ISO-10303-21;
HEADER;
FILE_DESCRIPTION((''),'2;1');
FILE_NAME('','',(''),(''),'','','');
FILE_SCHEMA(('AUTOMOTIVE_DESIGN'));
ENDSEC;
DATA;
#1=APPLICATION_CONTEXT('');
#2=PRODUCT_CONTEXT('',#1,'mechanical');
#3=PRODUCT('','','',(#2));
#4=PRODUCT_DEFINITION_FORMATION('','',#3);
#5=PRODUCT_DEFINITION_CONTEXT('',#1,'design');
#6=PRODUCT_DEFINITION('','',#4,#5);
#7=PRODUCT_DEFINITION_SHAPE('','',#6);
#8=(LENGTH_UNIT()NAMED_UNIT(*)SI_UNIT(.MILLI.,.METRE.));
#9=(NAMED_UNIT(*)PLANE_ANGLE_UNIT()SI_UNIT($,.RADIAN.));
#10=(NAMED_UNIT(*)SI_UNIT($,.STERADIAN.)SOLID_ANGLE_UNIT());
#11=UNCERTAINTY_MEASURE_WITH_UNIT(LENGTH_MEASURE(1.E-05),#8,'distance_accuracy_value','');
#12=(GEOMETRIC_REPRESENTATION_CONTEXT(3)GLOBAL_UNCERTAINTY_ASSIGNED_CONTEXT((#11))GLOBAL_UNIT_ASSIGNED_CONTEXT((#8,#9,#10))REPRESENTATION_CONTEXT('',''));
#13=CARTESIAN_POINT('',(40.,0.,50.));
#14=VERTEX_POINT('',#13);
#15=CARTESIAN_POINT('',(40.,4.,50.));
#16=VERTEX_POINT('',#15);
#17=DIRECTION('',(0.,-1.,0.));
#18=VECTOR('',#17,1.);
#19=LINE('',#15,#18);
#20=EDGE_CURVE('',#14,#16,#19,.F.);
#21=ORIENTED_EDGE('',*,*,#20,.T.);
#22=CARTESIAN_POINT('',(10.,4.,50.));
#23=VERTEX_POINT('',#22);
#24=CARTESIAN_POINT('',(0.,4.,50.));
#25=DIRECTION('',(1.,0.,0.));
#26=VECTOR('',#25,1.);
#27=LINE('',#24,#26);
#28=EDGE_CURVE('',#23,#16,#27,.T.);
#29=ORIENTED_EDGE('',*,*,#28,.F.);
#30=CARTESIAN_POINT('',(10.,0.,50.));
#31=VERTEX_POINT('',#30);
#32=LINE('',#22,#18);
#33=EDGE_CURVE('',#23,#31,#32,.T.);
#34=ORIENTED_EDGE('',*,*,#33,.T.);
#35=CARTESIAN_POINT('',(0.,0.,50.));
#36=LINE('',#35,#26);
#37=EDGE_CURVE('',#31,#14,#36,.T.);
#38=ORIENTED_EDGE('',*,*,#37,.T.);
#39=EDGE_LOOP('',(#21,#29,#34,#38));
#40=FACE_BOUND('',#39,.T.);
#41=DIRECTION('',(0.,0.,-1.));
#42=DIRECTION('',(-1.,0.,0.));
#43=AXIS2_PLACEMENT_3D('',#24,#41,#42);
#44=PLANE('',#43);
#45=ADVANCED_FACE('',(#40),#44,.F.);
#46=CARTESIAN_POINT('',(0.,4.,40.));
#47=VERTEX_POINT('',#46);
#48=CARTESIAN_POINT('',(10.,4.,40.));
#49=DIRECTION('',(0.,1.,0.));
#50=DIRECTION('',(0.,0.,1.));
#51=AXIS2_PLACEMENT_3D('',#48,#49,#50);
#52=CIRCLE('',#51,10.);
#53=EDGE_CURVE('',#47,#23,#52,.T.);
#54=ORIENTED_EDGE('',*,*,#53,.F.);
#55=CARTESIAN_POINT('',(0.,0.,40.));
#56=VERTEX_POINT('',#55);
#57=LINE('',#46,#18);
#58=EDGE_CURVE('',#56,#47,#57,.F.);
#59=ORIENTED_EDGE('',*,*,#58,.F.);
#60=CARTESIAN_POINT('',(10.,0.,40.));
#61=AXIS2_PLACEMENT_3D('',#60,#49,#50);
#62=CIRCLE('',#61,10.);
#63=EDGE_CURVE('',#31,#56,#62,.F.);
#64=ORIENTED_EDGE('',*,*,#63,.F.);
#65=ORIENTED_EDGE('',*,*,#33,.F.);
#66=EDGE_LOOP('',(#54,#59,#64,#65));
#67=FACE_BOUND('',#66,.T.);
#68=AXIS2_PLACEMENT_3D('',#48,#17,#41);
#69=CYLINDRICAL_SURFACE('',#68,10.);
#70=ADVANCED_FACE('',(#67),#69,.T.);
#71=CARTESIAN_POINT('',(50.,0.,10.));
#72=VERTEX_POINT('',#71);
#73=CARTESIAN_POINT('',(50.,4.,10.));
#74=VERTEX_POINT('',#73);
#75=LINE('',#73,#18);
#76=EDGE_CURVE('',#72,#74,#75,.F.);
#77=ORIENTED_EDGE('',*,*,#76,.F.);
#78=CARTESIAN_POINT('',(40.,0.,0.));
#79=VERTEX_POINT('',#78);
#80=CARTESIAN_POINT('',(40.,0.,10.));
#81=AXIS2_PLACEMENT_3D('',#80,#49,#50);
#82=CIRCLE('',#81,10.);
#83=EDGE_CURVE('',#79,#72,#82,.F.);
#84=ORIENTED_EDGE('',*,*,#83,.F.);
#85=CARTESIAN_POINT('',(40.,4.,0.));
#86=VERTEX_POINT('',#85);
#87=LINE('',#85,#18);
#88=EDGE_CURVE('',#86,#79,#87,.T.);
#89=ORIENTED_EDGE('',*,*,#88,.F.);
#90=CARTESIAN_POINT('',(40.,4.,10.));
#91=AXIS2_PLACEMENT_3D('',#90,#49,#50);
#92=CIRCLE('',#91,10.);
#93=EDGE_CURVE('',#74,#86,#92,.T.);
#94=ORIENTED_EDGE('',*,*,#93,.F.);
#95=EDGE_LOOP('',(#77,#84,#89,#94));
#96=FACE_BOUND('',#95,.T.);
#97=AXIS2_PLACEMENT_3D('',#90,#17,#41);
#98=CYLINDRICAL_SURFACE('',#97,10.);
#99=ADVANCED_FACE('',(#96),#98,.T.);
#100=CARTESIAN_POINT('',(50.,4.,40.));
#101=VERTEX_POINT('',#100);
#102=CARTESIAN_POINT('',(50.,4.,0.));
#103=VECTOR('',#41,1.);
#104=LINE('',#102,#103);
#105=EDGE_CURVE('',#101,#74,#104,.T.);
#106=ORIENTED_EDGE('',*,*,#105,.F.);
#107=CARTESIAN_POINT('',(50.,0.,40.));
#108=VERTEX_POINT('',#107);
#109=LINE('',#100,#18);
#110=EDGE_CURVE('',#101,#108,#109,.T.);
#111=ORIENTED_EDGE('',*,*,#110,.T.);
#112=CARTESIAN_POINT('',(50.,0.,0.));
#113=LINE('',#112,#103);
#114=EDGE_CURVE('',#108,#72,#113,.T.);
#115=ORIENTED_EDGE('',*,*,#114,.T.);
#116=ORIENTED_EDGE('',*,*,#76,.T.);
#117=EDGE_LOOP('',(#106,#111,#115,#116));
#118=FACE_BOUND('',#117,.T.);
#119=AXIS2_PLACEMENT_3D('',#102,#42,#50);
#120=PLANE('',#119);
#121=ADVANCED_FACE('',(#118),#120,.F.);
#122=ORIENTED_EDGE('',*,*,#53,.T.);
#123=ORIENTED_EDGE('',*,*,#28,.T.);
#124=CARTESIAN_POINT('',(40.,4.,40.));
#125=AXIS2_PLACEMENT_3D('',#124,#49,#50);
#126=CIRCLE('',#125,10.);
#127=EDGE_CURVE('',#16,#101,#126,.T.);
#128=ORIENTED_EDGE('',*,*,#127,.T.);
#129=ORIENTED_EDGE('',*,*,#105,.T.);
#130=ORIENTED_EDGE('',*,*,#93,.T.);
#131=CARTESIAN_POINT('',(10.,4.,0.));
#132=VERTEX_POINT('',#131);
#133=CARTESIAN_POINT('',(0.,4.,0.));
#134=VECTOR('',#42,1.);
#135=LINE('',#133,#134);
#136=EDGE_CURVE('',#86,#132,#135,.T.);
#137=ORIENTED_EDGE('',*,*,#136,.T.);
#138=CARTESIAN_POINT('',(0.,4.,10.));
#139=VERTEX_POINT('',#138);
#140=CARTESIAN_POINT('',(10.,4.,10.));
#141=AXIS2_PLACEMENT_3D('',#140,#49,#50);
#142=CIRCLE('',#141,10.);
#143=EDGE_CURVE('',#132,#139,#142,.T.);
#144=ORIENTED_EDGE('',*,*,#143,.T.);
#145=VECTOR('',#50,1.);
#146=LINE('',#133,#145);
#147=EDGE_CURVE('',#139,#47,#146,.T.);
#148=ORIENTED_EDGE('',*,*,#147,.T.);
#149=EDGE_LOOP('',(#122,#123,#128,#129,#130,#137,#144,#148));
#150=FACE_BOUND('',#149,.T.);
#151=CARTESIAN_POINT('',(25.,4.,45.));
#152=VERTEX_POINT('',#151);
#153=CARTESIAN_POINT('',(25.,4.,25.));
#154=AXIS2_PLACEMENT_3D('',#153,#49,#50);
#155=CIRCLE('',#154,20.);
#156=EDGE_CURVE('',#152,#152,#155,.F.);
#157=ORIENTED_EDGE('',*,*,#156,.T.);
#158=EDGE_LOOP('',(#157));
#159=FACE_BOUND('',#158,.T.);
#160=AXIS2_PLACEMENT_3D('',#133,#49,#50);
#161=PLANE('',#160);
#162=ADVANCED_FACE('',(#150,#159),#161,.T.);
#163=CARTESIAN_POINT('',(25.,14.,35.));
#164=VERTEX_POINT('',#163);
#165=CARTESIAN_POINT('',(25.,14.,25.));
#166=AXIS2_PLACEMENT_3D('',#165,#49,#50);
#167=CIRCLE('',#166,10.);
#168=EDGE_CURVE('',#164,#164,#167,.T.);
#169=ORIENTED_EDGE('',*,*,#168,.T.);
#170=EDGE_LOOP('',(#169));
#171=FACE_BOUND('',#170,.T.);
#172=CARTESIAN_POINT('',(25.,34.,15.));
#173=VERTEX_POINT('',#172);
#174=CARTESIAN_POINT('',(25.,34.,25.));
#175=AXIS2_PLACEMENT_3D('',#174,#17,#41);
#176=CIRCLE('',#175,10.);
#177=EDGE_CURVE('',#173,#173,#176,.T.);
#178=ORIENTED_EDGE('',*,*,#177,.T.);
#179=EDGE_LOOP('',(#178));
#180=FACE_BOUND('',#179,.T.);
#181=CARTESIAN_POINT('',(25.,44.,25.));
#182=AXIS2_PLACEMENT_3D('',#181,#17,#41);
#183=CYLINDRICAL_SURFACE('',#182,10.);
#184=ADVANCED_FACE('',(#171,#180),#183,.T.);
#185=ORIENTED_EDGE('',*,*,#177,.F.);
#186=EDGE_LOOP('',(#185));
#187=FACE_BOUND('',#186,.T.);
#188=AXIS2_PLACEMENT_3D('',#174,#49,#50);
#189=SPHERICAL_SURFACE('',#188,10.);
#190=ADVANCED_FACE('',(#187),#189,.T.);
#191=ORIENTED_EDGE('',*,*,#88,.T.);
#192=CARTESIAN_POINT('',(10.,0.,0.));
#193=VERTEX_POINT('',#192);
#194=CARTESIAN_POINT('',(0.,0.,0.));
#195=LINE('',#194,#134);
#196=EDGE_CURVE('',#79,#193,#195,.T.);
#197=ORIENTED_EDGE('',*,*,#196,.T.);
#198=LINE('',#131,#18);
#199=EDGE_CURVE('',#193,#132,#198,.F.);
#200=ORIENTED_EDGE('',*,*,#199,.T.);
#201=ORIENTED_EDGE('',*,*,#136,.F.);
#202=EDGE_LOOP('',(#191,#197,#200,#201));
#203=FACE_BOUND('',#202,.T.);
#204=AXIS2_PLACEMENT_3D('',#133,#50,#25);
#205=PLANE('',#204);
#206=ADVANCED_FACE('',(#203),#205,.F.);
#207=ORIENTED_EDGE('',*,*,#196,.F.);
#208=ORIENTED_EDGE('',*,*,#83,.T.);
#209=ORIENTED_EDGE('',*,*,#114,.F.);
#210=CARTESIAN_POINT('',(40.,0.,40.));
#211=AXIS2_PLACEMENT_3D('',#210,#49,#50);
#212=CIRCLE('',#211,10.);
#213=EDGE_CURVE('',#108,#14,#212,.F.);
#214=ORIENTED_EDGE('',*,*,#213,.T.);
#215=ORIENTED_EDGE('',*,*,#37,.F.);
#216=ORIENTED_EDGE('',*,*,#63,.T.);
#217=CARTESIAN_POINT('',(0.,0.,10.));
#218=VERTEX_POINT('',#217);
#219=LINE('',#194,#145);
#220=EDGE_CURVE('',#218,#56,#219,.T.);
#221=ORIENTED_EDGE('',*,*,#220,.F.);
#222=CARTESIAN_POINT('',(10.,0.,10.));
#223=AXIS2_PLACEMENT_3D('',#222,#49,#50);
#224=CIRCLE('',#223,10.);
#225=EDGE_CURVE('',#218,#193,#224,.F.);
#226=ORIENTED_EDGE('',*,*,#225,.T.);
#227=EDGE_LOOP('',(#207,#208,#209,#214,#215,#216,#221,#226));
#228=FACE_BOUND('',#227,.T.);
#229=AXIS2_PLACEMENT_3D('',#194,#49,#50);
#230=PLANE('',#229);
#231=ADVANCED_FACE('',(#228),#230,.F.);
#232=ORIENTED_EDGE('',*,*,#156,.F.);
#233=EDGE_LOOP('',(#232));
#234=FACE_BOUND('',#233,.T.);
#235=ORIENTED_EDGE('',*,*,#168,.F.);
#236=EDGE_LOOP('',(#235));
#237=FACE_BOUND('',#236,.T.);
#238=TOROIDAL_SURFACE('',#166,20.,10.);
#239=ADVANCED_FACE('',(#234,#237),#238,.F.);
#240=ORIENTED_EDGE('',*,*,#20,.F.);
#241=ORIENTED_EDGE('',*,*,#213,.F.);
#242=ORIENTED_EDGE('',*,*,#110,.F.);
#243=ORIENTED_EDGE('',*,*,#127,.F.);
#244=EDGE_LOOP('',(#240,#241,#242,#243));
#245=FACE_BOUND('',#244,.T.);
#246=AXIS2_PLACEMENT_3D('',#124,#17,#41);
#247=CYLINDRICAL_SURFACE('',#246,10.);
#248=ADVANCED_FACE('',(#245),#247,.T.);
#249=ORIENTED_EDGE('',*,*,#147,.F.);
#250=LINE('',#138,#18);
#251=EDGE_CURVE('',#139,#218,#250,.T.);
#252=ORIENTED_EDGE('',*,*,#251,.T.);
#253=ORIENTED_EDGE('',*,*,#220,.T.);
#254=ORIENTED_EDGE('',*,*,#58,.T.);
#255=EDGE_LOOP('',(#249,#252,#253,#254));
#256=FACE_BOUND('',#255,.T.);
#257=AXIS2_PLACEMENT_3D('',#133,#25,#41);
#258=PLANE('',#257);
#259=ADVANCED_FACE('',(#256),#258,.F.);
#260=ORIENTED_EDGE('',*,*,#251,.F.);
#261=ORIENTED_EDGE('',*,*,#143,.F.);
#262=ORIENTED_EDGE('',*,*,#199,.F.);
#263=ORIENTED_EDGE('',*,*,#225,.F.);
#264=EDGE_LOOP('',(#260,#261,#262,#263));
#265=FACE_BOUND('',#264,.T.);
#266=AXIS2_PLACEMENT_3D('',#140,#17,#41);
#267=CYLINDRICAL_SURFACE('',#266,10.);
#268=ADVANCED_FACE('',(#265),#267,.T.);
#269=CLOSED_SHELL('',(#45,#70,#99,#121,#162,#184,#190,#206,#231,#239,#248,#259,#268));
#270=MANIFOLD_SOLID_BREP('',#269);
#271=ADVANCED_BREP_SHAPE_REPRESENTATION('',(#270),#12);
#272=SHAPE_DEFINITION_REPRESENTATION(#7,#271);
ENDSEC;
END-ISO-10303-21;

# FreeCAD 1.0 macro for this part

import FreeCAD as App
import Part
import Sketcher

V = App.Vector


def edges_at(feature, points):
    """Names of the edges that pass closest to the given points."""
    edges = feature.Shape.Edges
    near = lambda p: min(range(len(edges)), key=lambda i: edges[i].distToShape(Part.Vertex(*p))[0])
    return sorted({f"Edge{near(p) + 1}" for p in points})

doc = App.newDocument("Part")
params = doc.addObject("Spreadsheet::Sheet", "Params")
for row, (alias, value) in enumerate([
    ("sketch1_width", "50 mm"),
    ("pad1_length", "4 mm"),
    ("sketch2_diameter", "20 mm"),
    ("pad2_length", "40 mm"),
    ("fillet_radius", "10 mm"),
    ("fillet2_radius", "10 mm"),
    ("fillet3_radius", "10 mm"),
], start=1):
    params.set(f"A{row}", alias)
    params.set(f"B{row}", "=" + value)
    params.setAlias(f"B{row}", alias)

body = doc.addObject("PartDesign::Body", "Body")

sketch1 = doc.addObject("Sketcher::SketchObject", "Sketch")
body.addObject(sketch1)
sketch1.AttachmentSupport = (doc.XZ_Plane, [""])
sketch1.MapMode = "FlatFace"
sketch1.addGeometry(Part.LineSegment(V(0, 0, 0), V(0, 50, 0)), False)
sketch1.addGeometry(Part.LineSegment(V(0, 50, 0), V(50, 50, 0)), False)
sketch1.addGeometry(Part.LineSegment(V(50, 50, 0), V(50, 0, 0)), False)
sketch1.addGeometry(Part.LineSegment(V(50, 0, 0), V(0, 0, 0)), False)
sketch1.addConstraint(Sketcher.Constraint("Coincident", 0, 2, 1, 1))
sketch1.addConstraint(Sketcher.Constraint("Coincident", 1, 2, 2, 1))
sketch1.addConstraint(Sketcher.Constraint("Coincident", 2, 2, 3, 1))
sketch1.addConstraint(Sketcher.Constraint("Coincident", 3, 2, 0, 1))
sketch1.addConstraint(Sketcher.Constraint("Vertical", 0))
sketch1.addConstraint(Sketcher.Constraint("Horizontal", 1))
sketch1.addConstraint(Sketcher.Constraint("Vertical", 2))
sketch1.addConstraint(Sketcher.Constraint("Horizontal", 3))
sketch1.addConstraint(Sketcher.Constraint("Coincident", 3, 2, -1, 1))
sketch1.addConstraint(Sketcher.Constraint("Equal", 3, 0))
sketch1.addConstraint(Sketcher.Constraint("DistanceX", 1, 1, 1, 2, 50.0))
sketch1.setExpression("Constraints[10]", "Params.sketch1_width")
pad1 = doc.addObject("PartDesign::Pad", "Pad")
body.addObject(pad1)
pad1.Profile = sketch1
pad1.setExpression("Length", "Params.pad1_length")
pad1.Reversed = True

sketch2 = doc.addObject("Sketcher::SketchObject", "Sketch001")
body.addObject(sketch2)
sketch2.AttachmentSupport = (doc.XZ_Plane, [""])
sketch2.MapMode = "FlatFace"
sketch2.AttachmentOffset = App.Placement(V(0, 0, -4), App.Rotation())
sketch2.addGeometry(Part.Circle(V(25, 25, 0), V(0, 0, 1), 10), False)
sketch2.addConstraint(Sketcher.Constraint("Diameter", 0, 20.0))
sketch2.addConstraint(Sketcher.Constraint("DistanceX", -1, 1, 0, 3, 25.0))
sketch2.addConstraint(Sketcher.Constraint("DistanceY", -1, 1, 0, 3, 25.0))
sketch2.setExpression("Constraints[0]", "Params.sketch2_diameter")
pad2 = doc.addObject("PartDesign::Pad", "Pad001")
body.addObject(pad2)
pad2.Profile = sketch2
pad2.setExpression("Length", "Params.pad2_length")
pad2.Reversed = True
doc.recompute()

fillet = doc.addObject("PartDesign::Fillet", "Fillet")
body.addObject(fillet)
fillet.Base = (pad2, edges_at(pad2, [(25, 4, 15)]))
fillet.setExpression("Radius", "Params.fillet_radius")
doc.recompute()

fillet2 = doc.addObject("PartDesign::Fillet", "Fillet001")
body.addObject(fillet2)
fillet2.Base = (fillet, edges_at(fillet, [(25, 44, 15)]))
fillet2.setExpression("Radius", "Params.fillet2_radius")
doc.recompute()

fillet3 = doc.addObject("PartDesign::Fillet", "Fillet002")
body.addObject(fillet3)
fillet3.Base = (fillet2, edges_at(fillet2, [
    (0, 2, 0),
    (50, 2, 0),
    (50, 2, 50),
    (0, 2, 50),
]))
fillet3.setExpression("Radius", "Params.fillet3_radius")

doc.recompute()
